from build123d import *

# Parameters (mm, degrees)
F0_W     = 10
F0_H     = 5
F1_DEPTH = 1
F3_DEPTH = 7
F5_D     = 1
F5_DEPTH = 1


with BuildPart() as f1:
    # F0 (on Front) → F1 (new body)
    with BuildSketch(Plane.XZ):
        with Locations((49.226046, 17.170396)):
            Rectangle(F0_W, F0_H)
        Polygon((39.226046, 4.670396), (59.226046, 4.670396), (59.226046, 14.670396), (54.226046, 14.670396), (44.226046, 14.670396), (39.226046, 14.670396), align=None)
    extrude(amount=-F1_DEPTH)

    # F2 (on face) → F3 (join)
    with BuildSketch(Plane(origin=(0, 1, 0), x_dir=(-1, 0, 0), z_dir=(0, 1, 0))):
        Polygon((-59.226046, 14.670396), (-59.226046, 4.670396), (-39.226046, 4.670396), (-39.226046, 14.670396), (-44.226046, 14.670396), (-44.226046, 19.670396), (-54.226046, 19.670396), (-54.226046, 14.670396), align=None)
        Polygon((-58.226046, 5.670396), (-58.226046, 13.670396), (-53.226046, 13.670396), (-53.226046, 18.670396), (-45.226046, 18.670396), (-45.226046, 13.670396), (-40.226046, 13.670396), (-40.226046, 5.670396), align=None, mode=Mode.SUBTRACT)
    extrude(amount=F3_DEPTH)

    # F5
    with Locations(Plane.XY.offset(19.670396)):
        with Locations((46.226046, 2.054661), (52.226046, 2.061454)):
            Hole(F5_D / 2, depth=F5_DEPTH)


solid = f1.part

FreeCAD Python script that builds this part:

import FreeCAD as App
import Part
import Sketcher
Q = App.Units.Quantity


def add_polygon(sketch, points):
    """Adds a closed chain of lines whose ends are joined by coincident constraints."""
    first, n = sketch.GeometryCount, len(points)
    for a, b in zip(points, points[1:] + points[:1]):
        sketch.addGeometry(Part.LineSegment(App.Vector(*a, 0), App.Vector(*b, 0)), False)
    for i in range(n):
        sketch.addConstraint(Sketcher.Constraint("Coincident", first + i, 2, first + (i + 1) % n, 1))

doc = App.newDocument("Part")
params = doc.addObject("Spreadsheet::Sheet", "Params")
for row, (alias, value) in enumerate([
    ("sketch1_width", "5 mm"),
    ("sketch1_width2", "20 mm"),
    ("pad1_length", "1 mm"),
    ("sketch2_width", "20 mm"),
    ("sketch2_width2", "5 mm"),
    ("sketch2_width3", "18 mm"),
    ("pad2_length", "7 mm"),
    ("sketch3_diameter", "1 mm"),
    ("hole_diameter", "1 mm"),
    ("hole_depth", "1 mm"),
], start=1):
    params.set(f"A{row}", alias)
    params.set(f"B{row}", "=" + value)
    params.setAlias(f"B{row}", alias)

body = doc.addObject("PartDesign::Body", "Body")

# Sketch on XZ plane
sketch1 = body.newObject("Sketcher::SketchObject", "Sketch")
sketch1.AttachmentSupport = (doc.getObject("XZ_Plane"), [""])
sketch1.MapMode = "FlatFace"
add_polygon(sketch1, [(44, 20), (44, 15), (39, 15), (39, 5), (59, 5), (59, 15), (54, 15), (54, 20)])  # lines 0-7
sketch1.addConstraint([
    Sketcher.Constraint("Vertical", 0),
    Sketcher.Constraint("Horizontal", 1),
    Sketcher.Constraint("Vertical", 2),
    Sketcher.Constraint("Horizontal", 3),
    Sketcher.Constraint("Vertical", 4),
    Sketcher.Constraint("Horizontal", 5),
    Sketcher.Constraint("Vertical", 6),
    Sketcher.Constraint("Horizontal", 7),
    Sketcher.Constraint("Horizontal", 1, 2, 4, 2),
    Sketcher.Constraint("Equal", 1, 5),
    Sketcher.Constraint("Equal", 5, 0),
    Sketcher.Constraint("Equal", 7, 2),
    Sketcher.Constraint("DistanceX", 1, 2, 1, 1, Q("5 mm")),
    Sketcher.Constraint("DistanceX", 3, 1, 3, 2, Q("20 mm")),
    Sketcher.Constraint("DistanceX", -1, 1, 0, 2, Q("44.226046 mm")),
    Sketcher.Constraint("DistanceY", -1, 1, 0, 2, Q("14.670396 mm")),
])
sketch1.setExpression("Constraints[20]", "Params.sketch1_width")
sketch1.setExpression("Constraints[21]", "Params.sketch1_width2")
pad1 = body.newObject("PartDesign::Pad", "Pad")
pad1.Profile = sketch1
pad1.setExpression("Length", "Params.pad1_length")
pad1.Reversed = True

# Sketch on XZ plane
sketch2 = body.newObject("Sketcher::SketchObject", "Sketch001")
sketch2.AttachmentSupport = (doc.getObject("XZ_Plane"), [""])
sketch2.MapMode = "FlatFace"
sketch2.AttachmentOffset = App.Placement(App.Vector(0, 0, -1), App.Rotation())
add_polygon(sketch2, [(59, 15), (59, 5), (39, 5), (39, 15), (44, 15), (44, 20), (54, 20), (54, 15)])  # lines 0-7
add_polygon(sketch2, [(40, 6), (58, 6), (58, 14), (53, 14), (53, 19), (45, 19), (45, 14), (40, 14)])  # lines 8-15
sketch2.addConstraint([
    Sketcher.Constraint("Vertical", 0),
    Sketcher.Constraint("Horizontal", 1),
    Sketcher.Constraint("Vertical", 2),
    Sketcher.Constraint("Horizontal", 3),
    Sketcher.Constraint("Vertical", 4),
    Sketcher.Constraint("Horizontal", 5),
    Sketcher.Constraint("Vertical", 6),
    Sketcher.Constraint("Horizontal", 7),
    Sketcher.Constraint("Horizontal", 8),
    Sketcher.Constraint("Vertical", 9),
    Sketcher.Constraint("Horizontal", 10),
    Sketcher.Constraint("Vertical", 11),
    Sketcher.Constraint("Horizontal", 12),
    Sketcher.Constraint("Vertical", 13),
    Sketcher.Constraint("Horizontal", 14),
    Sketcher.Constraint("Vertical", 15),
    Sketcher.Constraint("Horizontal", 3, 2, 6, 2),
    Sketcher.Constraint("Horizontal", 10, 2, 13, 2),
    Sketcher.Constraint("Equal", 3, 7),
    Sketcher.Constraint("Equal", 7, 10),
    Sketcher.Constraint("Equal", 10, 14),
    Sketcher.Constraint("Equal", 5, 0),
    Sketcher.Constraint("Equal", 14, 4),
    Sketcher.Constraint("Equal", 12, 9),
    Sketcher.Constraint("Equal", 6, 11),
    Sketcher.Constraint("DistanceX", 1, 2, 1, 1, Q("20 mm")),
    Sketcher.Constraint("DistanceX", 3, 1, 3, 2, Q("5 mm")),
    Sketcher.Constraint("DistanceX", 8, 1, 8, 2, Q("18 mm")),
    Sketcher.Constraint("DistanceX", 8, 2, 0, 2, Q("1 mm")),
    Sketcher.Constraint("DistanceY", 0, 2, 8, 2, Q("1 mm")),
    Sketcher.Constraint("DistanceX", -1, 1, 0, 2, Q("59.226046 mm")),
    Sketcher.Constraint("DistanceY", -1, 1, 0, 2, Q("4.670396 mm")),
])
sketch2.setExpression("Constraints[41]", "Params.sketch2_width")
sketch2.setExpression("Constraints[42]", "Params.sketch2_width2")
sketch2.setExpression("Constraints[43]", "Params.sketch2_width3")
pad2 = body.newObject("PartDesign::Pad", "Pad001")
pad2.Profile = sketch2
pad2.setExpression("Length", "Params.pad2_length")
pad2.Reversed = True

# Sketch on XY plane
sketch3 = body.newObject("Sketcher::SketchObject", "Sketch002")
sketch3.AttachmentSupport = (doc.getObject("XY_Plane"), [""])
sketch3.MapMode = "FlatFace"
sketch3.AttachmentOffset = App.Placement(App.Vector(0, 0, 19.670396), App.Rotation())
sketch3.addGeometry([
    Part.Circle(App.Vector(46.2, 2.1, 0), App.Vector(0, 0, 1), 0.5),
    Part.Circle(App.Vector(52.2, 2.1, 0), App.Vector(0, 0, 1), 0.5),
], False)
sketch3.addConstraint([
    Sketcher.Constraint("Equal", 0, 1),
    Sketcher.Constraint("Diameter", 0, Q("1 mm")),
    Sketcher.Constraint("DistanceX", 0, 3, 1, 3, Q("6 mm")),
    Sketcher.Constraint("DistanceY", -1, 1, 0, 3, Q("2.054661 mm")),
    Sketcher.Constraint("DistanceX", -1, 1, 0, 3, Q("46.226046 mm")),
    Sketcher.Constraint("DistanceY", -1, 1, 1, 3, Q("2.061454 mm")),
])
sketch3.setExpression("Constraints[1]", "Params.sketch3_diameter")
doc.recompute()
hole = body.newObject("PartDesign::Hole", "Hole")
hole.Profile = sketch3
hole.ThreadType = "None"
hole.setExpression("Diameter", "Params.hole_diameter")
hole.DepthType = "Dimension"
hole.setExpression("Depth", "Params.hole_depth")
hole.DrillPoint = "Flat"

doc.recompute()
